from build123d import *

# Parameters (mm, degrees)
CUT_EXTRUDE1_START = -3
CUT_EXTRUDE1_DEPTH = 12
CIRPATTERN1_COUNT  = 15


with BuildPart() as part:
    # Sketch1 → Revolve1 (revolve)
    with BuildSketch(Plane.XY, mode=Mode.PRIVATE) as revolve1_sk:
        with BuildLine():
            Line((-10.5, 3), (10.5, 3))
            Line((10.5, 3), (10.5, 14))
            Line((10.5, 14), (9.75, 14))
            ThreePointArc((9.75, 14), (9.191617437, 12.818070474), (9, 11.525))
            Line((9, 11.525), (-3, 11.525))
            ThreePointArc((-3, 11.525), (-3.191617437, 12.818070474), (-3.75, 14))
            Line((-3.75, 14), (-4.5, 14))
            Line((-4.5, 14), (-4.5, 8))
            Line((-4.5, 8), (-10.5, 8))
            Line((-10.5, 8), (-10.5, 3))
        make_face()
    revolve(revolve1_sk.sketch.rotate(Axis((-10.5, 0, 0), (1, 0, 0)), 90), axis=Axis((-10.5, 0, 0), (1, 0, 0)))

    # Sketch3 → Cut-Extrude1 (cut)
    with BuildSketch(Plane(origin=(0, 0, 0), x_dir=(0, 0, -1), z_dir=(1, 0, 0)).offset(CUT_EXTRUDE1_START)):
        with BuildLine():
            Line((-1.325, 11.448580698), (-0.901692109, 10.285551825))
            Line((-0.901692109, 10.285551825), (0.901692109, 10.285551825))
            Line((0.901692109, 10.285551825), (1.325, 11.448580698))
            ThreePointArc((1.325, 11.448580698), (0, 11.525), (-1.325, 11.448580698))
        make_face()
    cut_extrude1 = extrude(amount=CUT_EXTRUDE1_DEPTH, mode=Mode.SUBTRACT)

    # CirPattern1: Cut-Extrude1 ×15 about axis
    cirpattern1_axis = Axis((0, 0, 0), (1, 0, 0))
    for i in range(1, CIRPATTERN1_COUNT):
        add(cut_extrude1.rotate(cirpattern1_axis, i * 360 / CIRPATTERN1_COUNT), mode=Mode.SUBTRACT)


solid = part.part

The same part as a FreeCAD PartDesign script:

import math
import FreeCAD as App
import Part
import Sketcher
from FreeCAD import Vector
Q = App.Units.Quantity

doc = App.newDocument("Part")
body = doc.addObject("PartDesign::Body", "Body")

sketch1 = body.newObject("Sketcher::SketchObject", "Sketch")
sketch1.AttachmentSupport = (doc.getObject("XY_Plane"), [""])
sketch1.MapMode = "FlatFace"
sketch1.addGeometry([
    Part.LineSegment(Vector(-10.5, 3, 0), Vector(10.5, 3, 0)),
    Part.LineSegment(Vector(10.5, 3, 0), Vector(10.5, 14, 0)),
    Part.LineSegment(Vector(10.5, 14, 0), Vector(9.8, 14, 0)),
    Part.ArcOfCircle(Part.Circle(Vector(13.5, 11.5, 0), Vector(0, 0, 1), 4.5), math.radians(146), math.radians(180)),
    Part.LineSegment(Vector(9, 11.5, 0), Vector(-3, 11.5, 0)),
    Part.ArcOfCircle(Part.Circle(Vector(-7.5, 11.5, 0), Vector(0, 0, 1), 4.5), math.radians(0), math.radians(34)),
    Part.LineSegment(Vector(-3.8, 14, 0), Vector(-4.5, 14, 0)),
    Part.LineSegment(Vector(-4.5, 14, 0), Vector(-4.5, 8, 0)),
    Part.LineSegment(Vector(-4.5, 8, 0), Vector(-10.5, 8, 0)),
    Part.LineSegment(Vector(-10.5, 8, 0), Vector(-10.5, 3, 0)),
], False)
sketch1.addConstraint([
    Sketcher.Constraint("Coincident", 0, 2, 1, 1),
    Sketcher.Constraint("Coincident", 1, 2, 2, 1),
    Sketcher.Constraint("Coincident", 2, 2, 3, 1),
    Sketcher.Constraint("Coincident", 3, 2, 4, 1),
    Sketcher.Constraint("Coincident", 4, 2, 5, 1),
    Sketcher.Constraint("Coincident", 5, 2, 6, 1),
    Sketcher.Constraint("Coincident", 6, 2, 7, 1),
    Sketcher.Constraint("Coincident", 7, 2, 8, 1),
    Sketcher.Constraint("Coincident", 8, 2, 9, 1),
    Sketcher.Constraint("Coincident", 9, 2, 0, 1),
    Sketcher.Constraint("Horizontal", 0),
    Sketcher.Constraint("Vertical", 1),
    Sketcher.Constraint("Horizontal", 2),
    Sketcher.Constraint("Horizontal", 4),
    Sketcher.Constraint("Horizontal", 6),
    Sketcher.Constraint("Vertical", 7),
    Sketcher.Constraint("Horizontal", 8),
    Sketcher.Constraint("Vertical", 9),
    Sketcher.Constraint("Equal", 3, 5),
    Sketcher.Constraint("Horizontal", 3, 3, 5, 3),
    Sketcher.Constraint("Horizontal", 5, 3, 3, 2),
    Sketcher.Constraint("Horizontal", 2, 2, 5, 2),
    Sketcher.Constraint("Equal", 2, 6),
    Sketcher.Constraint("Equal", 8, 7),
    Sketcher.Constraint("DistanceX", 0, 1, 0, 2, 21.0),
    Sketcher.Constraint("DistanceX", 4, 2, 4, 1, 12.0),
    Sketcher.Constraint("DistanceX", 8, 2, 8, 1, 6.0),
    Sketcher.Constraint("DistanceY", 1, 1, 1, 2, 11.0),
    Sketcher.Constraint("DistanceY", -1, 1, 0, 2, 3.0),
    Sketcher.Constraint("DistanceX", -1, 1, 3, 2, 9.0),
    Sketcher.Constraint("DistanceX", 2, 2, 2, 1, 0.75),
    Sketcher.Constraint("Radius", 3, 4.45875),
])
revolution = body.newObject("PartDesign::Revolution", "Revolution")
revolution.Profile = sketch1
revolution.ReferenceAxis = (sketch1, ["H_Axis"])
revolution.Angle = 360

sketch2 = body.newObject("Sketcher::SketchObject", "Sketch001")
sketch2.AttachmentSupport = (doc.getObject("YZ_Plane"), [""])
sketch2.MapMode = "FlatFace"
sketch2.AttachmentOffset = App.Placement(Vector(0, 0, -3), App.Rotation())
sketch2.addGeometry([
    Part.LineSegment(Vector(11.4, 1.3, 0), Vector(10.3, 0.9, 0)),
    Part.LineSegment(Vector(10.3, 0.9, 0), Vector(10.3, -0.9, 0)),
    Part.LineSegment(Vector(10.3, -0.9, 0), Vector(11.4, -1.3, 0)),
    Part.ArcOfCircle(Part.Circle(Vector(0, 0, 0), Vector(0, 0, 1), 11.5), math.radians(-6.6), math.radians(6.6)),
], False)
sketch2.addConstraint([
    Sketcher.Constraint("Coincident", 0, 2, 1, 1),
    Sketcher.Constraint("Coincident", 1, 2, 2, 1),
    Sketcher.Constraint("Coincident", 2, 2, 3, 1),
    Sketcher.Constraint("Coincident", 3, 2, 0, 1),
    Sketcher.Constraint("Vertical", 1),
    Sketcher.Constraint("Coincident", 3, 3, -1, 1),
    Sketcher.Constraint("Vertical", 2, 2, 3, 2),
    Sketcher.Constraint("Equal", 0, 2),
    Sketcher.Constraint("Angle", 0, Q("-160 deg")),
    Sketcher.Constraint("Radius", 3, 11.525),
    Sketcher.Constraint("DistanceY", 2, 2, 3, 2, 2.65),
    Sketcher.Constraint("Distance", 0, 1.237669),
])
pocket1 = body.newObject("PartDesign::Pocket", "Pocket")
pocket1.Profile = sketch2
pocket1.Length = 12
pocket1.Reversed = True
doc.recompute()

polarpattern = body.newObject("PartDesign::PolarPattern", "PolarPattern")
polarpattern.Originals = [pocket1]
polarpattern.Axis = (doc.getObject("X_Axis"), [""])
polarpattern.Angle = 360
polarpattern.Occurrences = 15
body.Tip = polarpattern

doc.recompute()
